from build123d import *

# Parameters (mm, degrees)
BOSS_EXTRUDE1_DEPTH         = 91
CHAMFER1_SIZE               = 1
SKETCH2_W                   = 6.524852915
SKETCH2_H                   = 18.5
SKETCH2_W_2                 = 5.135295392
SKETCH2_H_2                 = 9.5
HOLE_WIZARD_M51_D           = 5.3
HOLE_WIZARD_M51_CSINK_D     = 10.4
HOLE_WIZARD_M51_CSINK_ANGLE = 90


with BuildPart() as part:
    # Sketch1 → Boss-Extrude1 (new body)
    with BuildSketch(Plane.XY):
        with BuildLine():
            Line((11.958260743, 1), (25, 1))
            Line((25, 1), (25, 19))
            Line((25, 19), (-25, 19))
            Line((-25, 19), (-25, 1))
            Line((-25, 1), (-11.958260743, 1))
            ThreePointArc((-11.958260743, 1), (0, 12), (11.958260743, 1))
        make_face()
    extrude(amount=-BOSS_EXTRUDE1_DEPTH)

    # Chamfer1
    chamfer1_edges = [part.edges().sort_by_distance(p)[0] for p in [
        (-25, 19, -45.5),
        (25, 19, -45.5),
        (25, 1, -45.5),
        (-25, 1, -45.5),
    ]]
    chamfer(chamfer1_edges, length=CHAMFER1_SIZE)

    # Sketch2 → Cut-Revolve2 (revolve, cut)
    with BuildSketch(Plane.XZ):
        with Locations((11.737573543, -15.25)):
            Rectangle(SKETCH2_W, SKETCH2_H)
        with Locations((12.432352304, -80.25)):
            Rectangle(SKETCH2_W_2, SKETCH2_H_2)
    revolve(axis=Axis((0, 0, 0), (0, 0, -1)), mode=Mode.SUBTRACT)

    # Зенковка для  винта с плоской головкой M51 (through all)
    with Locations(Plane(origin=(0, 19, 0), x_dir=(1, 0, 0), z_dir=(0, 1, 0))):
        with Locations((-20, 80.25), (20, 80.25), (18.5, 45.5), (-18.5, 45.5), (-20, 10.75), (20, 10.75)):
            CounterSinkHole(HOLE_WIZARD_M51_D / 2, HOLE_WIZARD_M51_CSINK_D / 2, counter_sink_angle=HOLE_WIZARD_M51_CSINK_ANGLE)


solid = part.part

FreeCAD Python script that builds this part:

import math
import FreeCAD as App
import Part
import Sketcher

V = App.Vector


def edges_at(feature, points):
    """Names of the edges that pass closest to the given points."""
    edges = feature.Shape.Edges
    near = lambda p: min(range(len(edges)), key=lambda i: edges[i].distToShape(Part.Vertex(*p))[0])
    return sorted({f"Edge{near(p) + 1}" for p in points})

doc = App.newDocument("Part")
params = doc.addObject("Spreadsheet::Sheet", "Params")
for row, (alias, value) in enumerate([
    ("sketch1_radius", "12 mm"),
    ("sketch1_width", "50 mm"),
    ("sketch1_height", "18 mm"),
    ("pad1_length", "91 mm"),
    ("chamfer_size", "1 mm"),
    ("sketch2_height", "18.5 mm"),
    ("sketch2_height2", "9.5 mm"),
    ("groove_angle", "360 deg"),
    ("sketch3_diameter", "5.3 mm"),
    ("hole_diameter", "5.3 mm"),
    ("hole_csink_diameter", "10.4 mm"),
], start=1):
    params.set(f"A{row}", alias)
    params.set(f"B{row}", "=" + value)
    params.setAlias(f"B{row}", alias)

body = doc.addObject("PartDesign::Body", "Body")

# Sketch on XY plane
sketch1 = body.newObject("Sketcher::SketchObject", "Sketch")
sketch1.AttachmentSupport = (doc.getObject("XY_Plane"), [""])
sketch1.MapMode = "FlatFace"
sketch1.addGeometry([
    Part.LineSegment(V(12, 1, 0), V(25, 1, 0)),  # 0
    Part.LineSegment(V(25, 1, 0), V(25, 19, 0)),  # 1
    Part.LineSegment(V(25, 19, 0), V(-25, 19, 0)),  # 2
    Part.LineSegment(V(-25, 19, 0), V(-25, 1, 0)),  # 3
    Part.LineSegment(V(-25, 1, 0), V(-12, 1, 0)),  # 4
    Part.ArcOfCircle(Part.Circle(V(0, 0, 0), V(0, 0, 1), 12), math.radians(5), math.radians(175)),  # 5
], False)
sketch1.addConstraint([
    Sketcher.Constraint("Coincident", 0, 2, 1, 1),
    Sketcher.Constraint("Coincident", 1, 2, 2, 1),
    Sketcher.Constraint("Coincident", 2, 2, 3, 1),
    Sketcher.Constraint("Coincident", 3, 2, 4, 1),
    Sketcher.Constraint("Coincident", 4, 2, 5, 2),
    Sketcher.Constraint("Coincident", 5, 1, 0, 1),
    Sketcher.Constraint("Horizontal", 0),
    Sketcher.Constraint("Vertical", 1),
    Sketcher.Constraint("Horizontal", 2),
    Sketcher.Constraint("Vertical", 3),
    Sketcher.Constraint("Horizontal", 4),
    Sketcher.Constraint("Coincident", 5, 3, -1, 1),
    Sketcher.Constraint("Symmetric", 0, 2, 3, 2, -2),
    Sketcher.Constraint("Radius", 5, 12.0),
    Sketcher.Constraint("DistanceX", 2, 2, 2, 1, 50.0),
    Sketcher.Constraint("DistanceY", 1, 1, 1, 2, 18.0),
    Sketcher.Constraint("DistanceY", -1, 1, 0, 2, 1.0),
])
sketch1.setExpression("Constraints[13]", "Params.sketch1_radius")
sketch1.setExpression("Constraints[14]", "Params.sketch1_width")
sketch1.setExpression("Constraints[15]", "Params.sketch1_height")
pad1 = body.newObject("PartDesign::Pad", "Pad")
pad1.Profile = sketch1
pad1.setExpression("Length", "Params.pad1_length")
pad1.Reversed = True
doc.recompute()

chamfer = body.newObject("PartDesign::Chamfer", "Chamfer")
chamfer.Base = (pad1, edges_at(pad1, [
    (-25, 19, -45.5),
    (25, 19, -45.5),
    (25, 1, -45.5),
    (-25, 1, -45.5),
]))
chamfer.setExpression("Size", "Params.chamfer_size")

# Sketch on XZ plane
sketch2 = body.newObject("Sketcher::SketchObject", "Sketch001")
sketch2.AttachmentSupport = (doc.getObject("XZ_Plane"), [""])
sketch2.MapMode = "FlatFace"
sketch2.addGeometry([
    Part.LineSegment(V(8, -6, 0), V(8, -24, 0)),  # 0
    Part.LineSegment(V(8, -24, 0), V(15, -24, 0)),  # 1
    Part.LineSegment(V(15, -24, 0), V(15, -6, 0)),  # 2
    Part.LineSegment(V(15, -6, 0), V(8, -6, 0)),  # 3
    Part.LineSegment(V(10, -76, 0), V(10, -85, 0)),  # 4
    Part.LineSegment(V(10, -85, 0), V(15, -85, 0)),  # 5
    Part.LineSegment(V(15, -85, 0), V(15, -76, 0)),  # 6
    Part.LineSegment(V(15, -76, 0), V(10, -76, 0)),  # 7
], False)
sketch2.addConstraint([
    Sketcher.Constraint("Coincident", 0, 2, 1, 1),
    Sketcher.Constraint("Coincident", 1, 2, 2, 1),
    Sketcher.Constraint("Coincident", 2, 2, 3, 1),
    Sketcher.Constraint("Coincident", 3, 2, 0, 1),
    Sketcher.Constraint("Coincident", 4, 2, 5, 1),
    Sketcher.Constraint("Coincident", 5, 2, 6, 1),
    Sketcher.Constraint("Coincident", 6, 2, 7, 1),
    Sketcher.Constraint("Coincident", 7, 2, 4, 1),
    Sketcher.Constraint("Vertical", 0),
    Sketcher.Constraint("Horizontal", 1),
    Sketcher.Constraint("Vertical", 2),
    Sketcher.Constraint("Horizontal", 3),
    Sketcher.Constraint("Vertical", 4),
    Sketcher.Constraint("Horizontal", 5),
    Sketcher.Constraint("Vertical", 6),
    Sketcher.Constraint("Horizontal", 7),
    Sketcher.Constraint("Vertical", 2, 2, 5, 2),
    Sketcher.Constraint("DistanceY", 0, 2, 0, 1, 18.5),
    Sketcher.Constraint("DistanceY", 4, 2, 4, 1, 9.5),
    Sketcher.Constraint("DistanceX", -1, 1, 1, 2, 15.0),
    Sketcher.Constraint("DistanceY", 2, 2, -1, 1, 6.0),
    Sketcher.Constraint("DistanceY", 4, 2, -1, 1, 85.0),
    Sketcher.Constraint("DistanceX", 1, 1, 1, 2, 6.524853),
    Sketcher.Constraint("DistanceX", 5, 1, 5, 2, 5.135295),
])
sketch2.setExpression("Constraints[17]", "Params.sketch2_height")
sketch2.setExpression("Constraints[18]", "Params.sketch2_height2")
groove = body.newObject("PartDesign::Groove", "Groove")
groove.Profile = sketch2
groove.ReferenceAxis = (sketch2, ["V_Axis"])
groove.setExpression("Angle", "Params.groove_angle")

# Sketch on XZ plane
sketch3 = body.newObject("Sketcher::SketchObject", "Sketch002")
sketch3.AttachmentSupport = (doc.getObject("XZ_Plane"), [""])
sketch3.MapMode = "FlatFace"
sketch3.AttachmentOffset = App.Placement(V(0, 0, -19), App.Rotation())
sketch3.addGeometry([
    Part.Circle(V(-20, -80.2, 0), V(0, 0, 1), 2.6),  # 0
    Part.Circle(V(20, -80.2, 0), V(0, 0, 1), 2.6),  # 1
    Part.Circle(V(18.5, -45.5, 0), V(0, 0, 1), 2.6),  # 2
    Part.Circle(V(-18.5, -45.5, 0), V(0, 0, 1), 2.6),  # 3
    Part.Circle(V(-20, -10.8, 0), V(0, 0, 1), 2.6),  # 4
    Part.Circle(V(20, -10.8, 0), V(0, 0, 1), 2.6),  # 5
], False)
sketch3.addConstraint([
    Sketcher.Constraint("Equal", 0, 1),
    Sketcher.Constraint("Equal", 1, 2),
    Sketcher.Constraint("Equal", 2, 3),
    Sketcher.Constraint("Equal", 3, 4),
    Sketcher.Constraint("Equal", 4, 5),
    Sketcher.Constraint("Symmetric", 0, 3, 1, 3, -2),
    Sketcher.Constraint("Symmetric", 2, 3, 3, 3, -2),
    Sketcher.Constraint("Symmetric", 4, 3, 5, 3, -2),
    Sketcher.Constraint("Vertical", 0, 3, 4, 3),
    Sketcher.Constraint("Diameter", 0, 5.3),
    Sketcher.Constraint("DistanceX", 0, 3, -1, 1, 20.0),
    Sketcher.Constraint("DistanceX", 3, 3, 2, 3, 37.0),
    Sketcher.Constraint("DistanceY", 2, 3, -1, 1, 45.5),
    Sketcher.Constraint("DistanceY", 0, 3, 4, 3, 69.5),
    Sketcher.Constraint("DistanceY", 0, 3, -1, 1, 80.25),
])
sketch3.setExpression("Constraints[9]", "Params.sketch3_diameter")
doc.recompute()
hole = body.newObject("PartDesign::Hole", "Hole")
hole.Profile = sketch3
hole.ThreadType = "None"
hole.setExpression("Diameter", "Params.hole_diameter")
hole.DepthType = "ThroughAll"
hole.HoleCutType = "Countersink"
hole.setExpression("HoleCutDiameter", "Params.hole_csink_diameter")
hole.HoleCutCountersinkAngle = 90
hole.Reversed = True

doc.recompute()
